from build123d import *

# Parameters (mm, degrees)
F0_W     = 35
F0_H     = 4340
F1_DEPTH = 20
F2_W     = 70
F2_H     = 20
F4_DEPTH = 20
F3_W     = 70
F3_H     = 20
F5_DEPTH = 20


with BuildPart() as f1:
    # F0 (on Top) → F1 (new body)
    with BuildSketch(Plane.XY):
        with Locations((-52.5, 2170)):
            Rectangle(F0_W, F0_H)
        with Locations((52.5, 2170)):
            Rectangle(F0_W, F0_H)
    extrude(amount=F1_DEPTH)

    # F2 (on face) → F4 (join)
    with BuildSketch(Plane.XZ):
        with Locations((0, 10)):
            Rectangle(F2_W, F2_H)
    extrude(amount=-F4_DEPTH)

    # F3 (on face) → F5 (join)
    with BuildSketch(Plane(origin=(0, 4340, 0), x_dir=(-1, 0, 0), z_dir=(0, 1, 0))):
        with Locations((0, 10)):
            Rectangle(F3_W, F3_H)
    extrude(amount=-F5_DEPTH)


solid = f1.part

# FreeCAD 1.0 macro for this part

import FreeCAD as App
import Part
import Sketcher
from FreeCAD import Vector
Q = App.Units.Quantity


def add_polygon(sketch, points):
    """Adds a closed chain of lines whose ends are joined by coincident constraints."""
    first, n = sketch.GeometryCount, len(points)
    for a, b in zip(points, points[1:] + points[:1]):
        sketch.addGeometry(Part.LineSegment(App.Vector(*a, 0), App.Vector(*b, 0)), False)
    for i in range(n):
        sketch.addConstraint(Sketcher.Constraint("Coincident", first + i, 2, first + (i + 1) % n, 1))

doc = App.newDocument("Part")
body = doc.addObject("PartDesign::Body", "Body")
body.AllowCompound = True

sketch1 = body.newObject("Sketcher::SketchObject", "Sketch")
sketch1.AttachmentSupport = (doc.getObject("XY_Plane"), [""])
sketch1.MapMode = "FlatFace"
add_polygon(sketch1, [(-70, 4340), (-70, 0), (-35, 0), (-35, 4340)])
add_polygon(sketch1, [(35, 4340), (35, 0), (70, 0), (70, 4340)])
sketch1.addConstraint(Sketcher.Constraint("Vertical", 0))
sketch1.addConstraint(Sketcher.Constraint("Horizontal", 1))
sketch1.addConstraint(Sketcher.Constraint("Vertical", 2))
sketch1.addConstraint(Sketcher.Constraint("Horizontal", 3))
sketch1.addConstraint(Sketcher.Constraint("Vertical", 4))
sketch1.addConstraint(Sketcher.Constraint("Horizontal", 5))
sketch1.addConstraint(Sketcher.Constraint("Vertical", 6))
sketch1.addConstraint(Sketcher.Constraint("Horizontal", 7))
sketch1.addConstraint(Sketcher.Constraint("Symmetric", 1, 2, 4, 2, -1, 1))
sketch1.addConstraint(Sketcher.Constraint("Symmetric", 0, 2, 5, 2, -2))
sketch1.addConstraint(Sketcher.Constraint("Horizontal", 3, 2, 6, 2))
sketch1.addConstraint(Sketcher.Constraint("DistanceX", 1, 1, 1, 2, Q("35 mm")))
sketch1.addConstraint(Sketcher.Constraint("DistanceY", 0, 2, 0, 1, Q("4340 mm")))
sketch1.addConstraint(Sketcher.Constraint("DistanceX", 0, 2, -1, 1, Q("70 mm")))
pad1 = body.newObject("PartDesign::Pad", "Pad")
pad1.Profile = sketch1
pad1.Length = 20

sketch2 = body.newObject("Sketcher::SketchObject", "Sketch001")
sketch2.AttachmentSupport = (doc.getObject("XZ_Plane"), [""])
sketch2.MapMode = "FlatFace"
add_polygon(sketch2, [(-35, 20), (-35, 0), (35, 0), (35, 20)])
sketch2.addConstraint(Sketcher.Constraint("Vertical", 0))
sketch2.addConstraint(Sketcher.Constraint("Horizontal", 1))
sketch2.addConstraint(Sketcher.Constraint("Vertical", 2))
sketch2.addConstraint(Sketcher.Constraint("Horizontal", 3))
sketch2.addConstraint(Sketcher.Constraint("Symmetric", 0, 2, 1, 2, -1, 1))
sketch2.addConstraint(Sketcher.Constraint("DistanceX", 1, 1, 1, 2, Q("70 mm")))
sketch2.addConstraint(Sketcher.Constraint("DistanceY", 0, 2, 0, 1, Q("20 mm")))
pad2 = body.newObject("PartDesign::Pad", "Pad001")
pad2.Profile = sketch2
pad2.Length = 20
pad2.Reversed = True

sketch3 = body.newObject("Sketcher::SketchObject", "Sketch002")
sketch3.AttachmentSupport = (doc.getObject("XZ_Plane"), [""])
sketch3.MapMode = "FlatFace"
sketch3.AttachmentOffset = App.Placement(Vector(0, 0, -4340), App.Rotation())
add_polygon(sketch3, [(35, 20), (35, 0), (-35, 0), (-35, 20)])
sketch3.addConstraint(Sketcher.Constraint("Vertical", 0))
sketch3.addConstraint(Sketcher.Constraint("Horizontal", 1))
sketch3.addConstraint(Sketcher.Constraint("Vertical", 2))
sketch3.addConstraint(Sketcher.Constraint("Horizontal", 3))
sketch3.addConstraint(Sketcher.Constraint("Symmetric", 0, 2, 1, 2, -1, 1))
sketch3.addConstraint(Sketcher.Constraint("DistanceX", 1, 2, 1, 1, Q("70 mm")))
sketch3.addConstraint(Sketcher.Constraint("DistanceY", 0, 2, 0, 1, Q("20 mm")))
pad3 = body.newObject("PartDesign::Pad", "Pad002")
pad3.Profile = sketch3
pad3.Length = 20

doc.recompute()
